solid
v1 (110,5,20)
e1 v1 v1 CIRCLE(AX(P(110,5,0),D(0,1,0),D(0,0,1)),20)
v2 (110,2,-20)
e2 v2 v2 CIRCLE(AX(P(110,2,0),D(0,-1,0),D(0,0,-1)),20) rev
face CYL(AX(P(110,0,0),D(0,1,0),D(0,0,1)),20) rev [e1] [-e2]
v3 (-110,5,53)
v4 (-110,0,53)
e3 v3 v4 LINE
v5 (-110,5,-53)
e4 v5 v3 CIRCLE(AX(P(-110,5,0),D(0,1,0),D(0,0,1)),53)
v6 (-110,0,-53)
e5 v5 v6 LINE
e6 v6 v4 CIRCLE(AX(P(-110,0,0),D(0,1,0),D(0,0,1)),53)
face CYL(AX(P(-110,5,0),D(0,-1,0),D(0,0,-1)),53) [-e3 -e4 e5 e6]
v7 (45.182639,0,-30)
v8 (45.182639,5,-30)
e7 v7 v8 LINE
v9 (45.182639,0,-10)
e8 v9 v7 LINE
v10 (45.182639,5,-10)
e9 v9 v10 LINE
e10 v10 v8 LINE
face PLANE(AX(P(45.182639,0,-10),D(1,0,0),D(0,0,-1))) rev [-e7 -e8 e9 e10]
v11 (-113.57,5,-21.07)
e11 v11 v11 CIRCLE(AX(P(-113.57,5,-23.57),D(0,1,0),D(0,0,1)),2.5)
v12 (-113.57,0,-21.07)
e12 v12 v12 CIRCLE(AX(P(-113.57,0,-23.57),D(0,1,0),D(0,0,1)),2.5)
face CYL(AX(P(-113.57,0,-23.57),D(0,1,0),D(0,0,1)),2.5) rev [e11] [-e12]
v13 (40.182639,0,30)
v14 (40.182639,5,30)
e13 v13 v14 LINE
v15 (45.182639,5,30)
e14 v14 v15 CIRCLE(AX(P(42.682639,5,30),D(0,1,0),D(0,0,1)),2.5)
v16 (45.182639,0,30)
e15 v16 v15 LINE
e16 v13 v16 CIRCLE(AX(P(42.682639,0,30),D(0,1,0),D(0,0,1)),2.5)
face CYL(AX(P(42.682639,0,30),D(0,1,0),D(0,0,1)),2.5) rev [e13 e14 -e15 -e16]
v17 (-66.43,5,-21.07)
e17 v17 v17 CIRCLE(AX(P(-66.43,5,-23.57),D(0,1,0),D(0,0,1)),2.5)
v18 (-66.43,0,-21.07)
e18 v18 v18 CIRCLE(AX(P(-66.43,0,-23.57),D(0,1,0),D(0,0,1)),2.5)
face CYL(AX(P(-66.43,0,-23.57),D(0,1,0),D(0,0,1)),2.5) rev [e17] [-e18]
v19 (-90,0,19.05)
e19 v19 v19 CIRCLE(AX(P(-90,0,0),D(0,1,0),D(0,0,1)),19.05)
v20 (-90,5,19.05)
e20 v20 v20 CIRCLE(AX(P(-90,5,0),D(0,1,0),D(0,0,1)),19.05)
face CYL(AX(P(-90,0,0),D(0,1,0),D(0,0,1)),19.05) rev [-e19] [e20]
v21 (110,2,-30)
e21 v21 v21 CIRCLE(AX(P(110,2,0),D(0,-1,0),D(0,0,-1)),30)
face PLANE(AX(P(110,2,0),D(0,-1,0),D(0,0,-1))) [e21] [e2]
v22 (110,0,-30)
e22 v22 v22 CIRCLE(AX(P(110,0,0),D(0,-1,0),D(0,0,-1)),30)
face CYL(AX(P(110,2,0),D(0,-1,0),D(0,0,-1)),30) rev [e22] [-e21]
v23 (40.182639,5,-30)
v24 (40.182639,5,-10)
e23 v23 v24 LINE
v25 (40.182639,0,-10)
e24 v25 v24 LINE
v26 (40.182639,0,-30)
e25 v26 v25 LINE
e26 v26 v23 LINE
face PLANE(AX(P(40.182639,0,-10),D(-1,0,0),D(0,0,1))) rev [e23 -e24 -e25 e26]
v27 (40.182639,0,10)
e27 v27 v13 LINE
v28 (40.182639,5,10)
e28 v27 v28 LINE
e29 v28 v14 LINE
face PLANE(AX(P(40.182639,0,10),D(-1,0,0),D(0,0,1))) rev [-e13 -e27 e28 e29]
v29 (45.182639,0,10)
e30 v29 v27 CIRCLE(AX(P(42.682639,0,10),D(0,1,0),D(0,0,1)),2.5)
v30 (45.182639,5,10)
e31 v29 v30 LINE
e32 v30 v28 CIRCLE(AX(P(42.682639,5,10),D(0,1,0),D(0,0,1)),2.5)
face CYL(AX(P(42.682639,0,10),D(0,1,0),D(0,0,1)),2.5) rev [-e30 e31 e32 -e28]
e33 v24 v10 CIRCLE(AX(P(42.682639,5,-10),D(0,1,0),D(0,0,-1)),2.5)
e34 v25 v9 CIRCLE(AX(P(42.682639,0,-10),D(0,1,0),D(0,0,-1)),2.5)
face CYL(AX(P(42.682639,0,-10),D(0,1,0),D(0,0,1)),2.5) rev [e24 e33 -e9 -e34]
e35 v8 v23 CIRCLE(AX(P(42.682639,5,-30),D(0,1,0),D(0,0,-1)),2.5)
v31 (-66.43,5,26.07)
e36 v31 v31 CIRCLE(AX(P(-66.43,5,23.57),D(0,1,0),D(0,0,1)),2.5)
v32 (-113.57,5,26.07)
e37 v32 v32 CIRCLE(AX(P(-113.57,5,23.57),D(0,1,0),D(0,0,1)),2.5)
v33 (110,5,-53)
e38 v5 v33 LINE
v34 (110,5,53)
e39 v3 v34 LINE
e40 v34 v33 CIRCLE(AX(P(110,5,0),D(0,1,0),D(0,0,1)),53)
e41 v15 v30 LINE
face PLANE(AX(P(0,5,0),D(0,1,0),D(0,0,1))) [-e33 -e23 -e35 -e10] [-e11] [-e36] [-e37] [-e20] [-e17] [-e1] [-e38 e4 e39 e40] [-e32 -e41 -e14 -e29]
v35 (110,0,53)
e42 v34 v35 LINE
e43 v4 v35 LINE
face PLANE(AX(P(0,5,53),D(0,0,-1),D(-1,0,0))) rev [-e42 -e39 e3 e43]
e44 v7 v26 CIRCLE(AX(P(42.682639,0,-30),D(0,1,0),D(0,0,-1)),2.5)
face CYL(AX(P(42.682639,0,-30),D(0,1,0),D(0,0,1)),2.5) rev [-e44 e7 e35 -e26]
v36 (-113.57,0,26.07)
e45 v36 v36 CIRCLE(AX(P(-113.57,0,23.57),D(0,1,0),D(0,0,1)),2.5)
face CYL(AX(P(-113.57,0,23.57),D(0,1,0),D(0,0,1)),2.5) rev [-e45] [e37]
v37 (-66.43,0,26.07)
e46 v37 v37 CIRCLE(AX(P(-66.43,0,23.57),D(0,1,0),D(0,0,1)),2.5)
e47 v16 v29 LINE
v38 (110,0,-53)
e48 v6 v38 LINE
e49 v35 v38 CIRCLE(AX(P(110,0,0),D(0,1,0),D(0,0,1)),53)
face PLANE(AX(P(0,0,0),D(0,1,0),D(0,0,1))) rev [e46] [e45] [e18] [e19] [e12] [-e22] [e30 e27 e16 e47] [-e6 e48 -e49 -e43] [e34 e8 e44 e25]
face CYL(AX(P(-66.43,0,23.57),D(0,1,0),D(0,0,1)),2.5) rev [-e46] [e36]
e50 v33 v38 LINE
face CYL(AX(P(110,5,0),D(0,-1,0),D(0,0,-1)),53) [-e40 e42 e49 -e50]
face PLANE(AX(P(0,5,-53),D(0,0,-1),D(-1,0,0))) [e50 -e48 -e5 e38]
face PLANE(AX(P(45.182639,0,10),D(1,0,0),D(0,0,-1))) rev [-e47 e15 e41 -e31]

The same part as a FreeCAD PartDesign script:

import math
import FreeCAD as App
import Part
import Sketcher
from FreeCAD import Vector

doc = App.newDocument("Part")
body = doc.addObject("PartDesign::Body", "Body")

# Sketch on XZ plane
sketch1 = body.newObject("Sketcher::SketchObject", "Sketch")
sketch1.AttachmentSupport = (doc.getObject("XZ_Plane"), [""])
sketch1.MapMode = "FlatFace"
sketch1.addGeometry([
    Part.LineSegment(Vector(-110, 53, 0), Vector(110, 53, 0)),  # 0
    Part.ArcOfCircle(Part.Circle(Vector(110, 0, 0), Vector(0, 0, 1), 53), math.radians(0), math.radians(90)),  # 1
    Part.ArcOfCircle(Part.Circle(Vector(110, 0, 0), Vector(0, 0, 1), 53), math.radians(-90), math.radians(0)),  # 2
    Part.LineSegment(Vector(110, -53, 0), Vector(-110, -53, 0)),  # 3
    Part.ArcOfCircle(Part.Circle(Vector(-110, 0, 0), Vector(0, 0, 1), 53), math.radians(90), math.radians(270)),  # 4
], False)
sketch1.addConstraint([
    Sketcher.Constraint("Tangent", 0, 2, 1, 2),
    Sketcher.Constraint("Tangent", 1, 1, 2, 2),
    Sketcher.Constraint("Tangent", 2, 1, 3, 1),
    Sketcher.Constraint("Tangent", 3, 2, 4, 2),
    Sketcher.Constraint("Tangent", 4, 1, 0, 1),
    Sketcher.Constraint("Horizontal", 0),
    Sketcher.Constraint("Horizontal", 3),
    Sketcher.Constraint("Equal", 1, 2),
    Sketcher.Constraint("Symmetric", 1, 3, 4, 3, -1, 1),
    Sketcher.Constraint("PointOnObject", 1, 1, -1),
    Sketcher.Constraint("Radius", 1, 53.0),
    Sketcher.Constraint("DistanceX", 0, 1, 0, 2, 220.0),
])
pad1 = body.newObject("PartDesign::Pad", "Pad")
pad1.Profile = sketch1
pad1.Length = 5
pad1.Reversed = True

# Sketch on XZ plane
sketch2 = body.newObject("Sketcher::SketchObject", "Sketch001")
sketch2.AttachmentSupport = (doc.getObject("XZ_Plane"), [""])
sketch2.MapMode = "FlatFace"
sketch2.AttachmentOffset = App.Placement(Vector(0, 0, -5), App.Rotation())
sketch2.addGeometry(Part.Circle(Vector(110, 0, 0), Vector(0, 0, 1), 20), False)
sketch2.addConstraint([
    Sketcher.Constraint("PointOnObject", 0, 3, -1),
    Sketcher.Constraint("Diameter", 0, 40.0),
    Sketcher.Constraint("DistanceX", -1, 1, 0, 3, 110.0),
])
pocket1 = body.newObject("PartDesign::Pocket", "Pocket")
pocket1.Profile = sketch2
pocket1.Type = "ThroughAll"
pocket1.Reversed = True

# Sketch on XZ plane
sketch3 = body.newObject("Sketcher::SketchObject", "Sketch002")
sketch3.AttachmentSupport = (doc.getObject("XZ_Plane"), [""])
sketch3.MapMode = "FlatFace"
sketch3.addGeometry(Part.Circle(Vector(110, 0, 0), Vector(0, 0, 1), 30), False)
sketch3.addConstraint([
    Sketcher.Constraint("PointOnObject", 0, 3, -1),
    Sketcher.Constraint("Diameter", 0, 60.0),
    Sketcher.Constraint("DistanceX", -1, 1, 0, 3, 110.0),
])
pocket2 = body.newObject("PartDesign::Pocket", "Pocket001")
pocket2.Profile = sketch3
pocket2.Length = 2

# Sketch on XZ plane
sketch4 = body.newObject("Sketcher::SketchObject", "Sketch003")
sketch4.AttachmentSupport = (doc.getObject("XZ_Plane"), [""])
sketch4.MapMode = "FlatFace"
sketch4.AttachmentOffset = App.Placement(Vector(0, 0, -5), App.Rotation())
sketch4.addGeometry([
    Part.Circle(Vector(-113.57, -23.57, 0), Vector(0, 0, 1), 2.5),  # 0
    Part.Circle(Vector(-66.43, -23.57, 0), Vector(0, 0, 1), 2.5),  # 1
    Part.Circle(Vector(-66.43, 23.57, 0), Vector(0, 0, 1), 2.5),  # 2
    Part.Circle(Vector(-113.57, 23.57, 0), Vector(0, 0, 1), 2.5),  # 3
    Part.Circle(Vector(-90, 0, 0), Vector(0, 0, 1), 19.05),  # 4
    Part.LineSegment(Vector(45.182639, -10, 0), Vector(45.182639, -30, 0)),  # 5
    Part.ArcOfCircle(Part.Circle(Vector(42.682639, -30, 0), Vector(0, 0, 1), 2.5), math.radians(180), math.radians(360)),  # 6
    Part.LineSegment(Vector(40.182639, -30, 0), Vector(40.182639, -10, 0)),  # 7
    Part.ArcOfCircle(Part.Circle(Vector(42.682639, -10, 0), Vector(0, 0, 1), 2.5), math.radians(0), math.radians(180)),  # 8
    Part.LineSegment(Vector(40.182639, 10, 0), Vector(40.182639, 30, 0)),  # 9
    Part.ArcOfCircle(Part.Circle(Vector(42.682639, 30, 0), Vector(0, 0, 1), 2.5), math.radians(0), math.radians(180)),  # 10
    Part.LineSegment(Vector(45.182639, 30, 0), Vector(45.182639, 10, 0)),  # 11
    Part.ArcOfCircle(Part.Circle(Vector(42.682639, 10, 0), Vector(0, 0, 1), 2.5), math.radians(180), math.radians(360)),  # 12
], False)
sketch4.addConstraint([
    Sketcher.Constraint("Tangent", 5, 2, 6, 2),
    Sketcher.Constraint("Tangent", 6, 1, 7, 1),
    Sketcher.Constraint("Tangent", 7, 2, 8, 2),
    Sketcher.Constraint("Tangent", 8, 1, 5, 1),
    Sketcher.Constraint("Tangent", 9, 2, 10, 2),
    Sketcher.Constraint("Tangent", 10, 1, 11, 1),
    Sketcher.Constraint("Tangent", 11, 2, 12, 2),
    Sketcher.Constraint("Tangent", 12, 1, 9, 1),
    Sketcher.Constraint("Vertical", 5),
    Sketcher.Constraint("Vertical", 7),
    Sketcher.Constraint("Vertical", 9),
    Sketcher.Constraint("Vertical", 11),
    Sketcher.Constraint("Equal", 0, 1),
    Sketcher.Constraint("Equal", 1, 2),
    Sketcher.Constraint("Equal", 2, 3),
    Sketcher.Constraint("Equal", 3, 6),
    Sketcher.Constraint("Equal", 8, 10),
    Sketcher.Constraint("Symmetric", 1, 3, 2, 3, -1),
    Sketcher.Constraint("Symmetric", 0, 3, 3, 3, -1),
    Sketcher.Constraint("Symmetric", 6, 3, 10, 3, -1),
    Sketcher.Constraint("PointOnObject", 4, 3, -1),
    Sketcher.Constraint("Horizontal", 0, 3, 1, 3),
    Sketcher.Constraint("Equal", 7, 9),
    Sketcher.Constraint("Diameter", 0, 5.0),
    Sketcher.Constraint("Diameter", 4, 38.1),
    Sketcher.Constraint("DistanceY", 5, 2, 5, 1, 20.0),
    Sketcher.Constraint("DistanceX", 4, 3, -1, 1, 90.0),
    Sketcher.Constraint("DistanceY", 6, 3, -1, 1, 30.0),
    Sketcher.Constraint("DistanceX", 0, 3, -1, 1, 113.57),
    Sketcher.Constraint("DistanceY", 0, 3, -1, 1, 23.57),
    Sketcher.Constraint("DistanceX", 1, 3, -1, 1, 66.43),
    Sketcher.Constraint("DistanceX", -1, 1, 6, 3, 42.682639),
])
pocket3 = body.newObject("PartDesign::Pocket", "Pocket002")
pocket3.Profile = sketch4
pocket3.Type = "ThroughAll"
pocket3.Reversed = True

doc.recompute()
